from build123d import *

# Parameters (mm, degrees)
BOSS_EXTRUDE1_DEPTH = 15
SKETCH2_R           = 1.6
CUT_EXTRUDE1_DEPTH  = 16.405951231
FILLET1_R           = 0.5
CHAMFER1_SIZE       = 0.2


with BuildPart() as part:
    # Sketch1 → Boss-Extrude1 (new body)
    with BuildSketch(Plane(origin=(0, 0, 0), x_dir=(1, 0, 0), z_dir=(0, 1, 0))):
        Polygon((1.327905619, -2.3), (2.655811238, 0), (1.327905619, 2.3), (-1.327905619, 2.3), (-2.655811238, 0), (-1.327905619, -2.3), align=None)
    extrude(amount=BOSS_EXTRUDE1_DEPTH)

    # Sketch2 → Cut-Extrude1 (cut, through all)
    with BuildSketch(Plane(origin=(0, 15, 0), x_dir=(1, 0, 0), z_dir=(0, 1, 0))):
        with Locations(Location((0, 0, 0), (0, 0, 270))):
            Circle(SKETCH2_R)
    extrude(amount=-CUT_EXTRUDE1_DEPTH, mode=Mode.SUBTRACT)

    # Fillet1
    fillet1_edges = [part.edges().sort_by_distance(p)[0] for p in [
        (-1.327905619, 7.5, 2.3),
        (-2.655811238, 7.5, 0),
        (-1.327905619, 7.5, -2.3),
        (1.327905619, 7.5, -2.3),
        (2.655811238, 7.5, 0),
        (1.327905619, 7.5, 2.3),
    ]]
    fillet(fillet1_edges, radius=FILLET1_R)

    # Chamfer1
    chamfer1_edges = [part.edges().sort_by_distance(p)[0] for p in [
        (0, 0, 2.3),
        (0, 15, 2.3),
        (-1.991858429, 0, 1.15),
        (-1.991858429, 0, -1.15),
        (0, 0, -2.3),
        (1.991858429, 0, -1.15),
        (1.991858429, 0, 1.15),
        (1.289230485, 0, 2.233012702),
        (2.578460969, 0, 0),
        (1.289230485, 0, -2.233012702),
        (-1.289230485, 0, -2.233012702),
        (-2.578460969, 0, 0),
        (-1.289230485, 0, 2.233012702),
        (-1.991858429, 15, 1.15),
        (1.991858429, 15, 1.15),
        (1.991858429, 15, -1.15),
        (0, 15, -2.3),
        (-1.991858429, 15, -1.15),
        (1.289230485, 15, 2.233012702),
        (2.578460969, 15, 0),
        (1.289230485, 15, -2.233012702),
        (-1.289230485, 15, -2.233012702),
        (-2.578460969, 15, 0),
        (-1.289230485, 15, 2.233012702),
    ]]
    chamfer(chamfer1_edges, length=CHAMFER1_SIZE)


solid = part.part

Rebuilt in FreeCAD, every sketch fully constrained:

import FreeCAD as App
import Part
import Sketcher
from FreeCAD import Vector
Q = App.Units.Quantity


def edges_at(feature, points):
    """Names of the edges that pass closest to the given points."""
    edges = feature.Shape.Edges
    near = lambda p: min(range(len(edges)), key=lambda i: edges[i].distToShape(Part.Vertex(*p))[0])
    return sorted({f"Edge{near(p) + 1}" for p in points})


def add_polygon(sketch, points):
    """Adds a closed chain of lines whose ends are joined by coincident constraints."""
    first, n = sketch.GeometryCount, len(points)
    for a, b in zip(points, points[1:] + points[:1]):
        sketch.addGeometry(Part.LineSegment(App.Vector(*a, 0), App.Vector(*b, 0)), False)
    for i in range(n):
        sketch.addConstraint(Sketcher.Constraint("Coincident", first + i, 2, first + (i + 1) % n, 1))

doc = App.newDocument("Part")
body = doc.addObject("PartDesign::Body", "Body")

# Sketch on XZ plane
sketch1 = body.newObject("Sketcher::SketchObject", "Sketch")
sketch1.AttachmentSupport = (doc.getObject("XZ_Plane"), [""])
sketch1.MapMode = "FlatFace"
add_polygon(sketch1, [(1.3, 2.3), (2.7, 0), (1.3, -2.3), (-1.3, -2.3), (-2.7, 0), (-1.3, 2.3)])  # lines 0-5
sketch1.addConstraint([
    Sketcher.Constraint("Horizontal", 2),
    Sketcher.Constraint("Horizontal", 5),
    Sketcher.Constraint("Symmetric", 0, 2, 3, 2, -1, 1),
    Sketcher.Constraint("Symmetric", 1, 2, 4, 2, -1, 1),
    Sketcher.Constraint("PointOnObject", 0, 2, -1),
    Sketcher.Constraint("Parallel", 0, 3),
    Sketcher.Constraint("Vertical", 2, 2, 4, 2),
    Sketcher.Constraint("Angle", 0, Q("-60 deg")),
    Sketcher.Constraint("DistanceY", 1, 2, -1, 1, Q("2.3 mm")),
    Sketcher.Constraint("DistanceX", 2, 2, 2, 1, Q("2.655811 mm")),
])
pad1 = body.newObject("PartDesign::Pad", "Pad")
pad1.Profile = sketch1
pad1.Length = 15
pad1.Reversed = True

# Sketch on XZ plane
sketch2 = body.newObject("Sketcher::SketchObject", "Sketch001")
sketch2.AttachmentSupport = (doc.getObject("XZ_Plane"), [""])
sketch2.MapMode = "FlatFace"
sketch2.AttachmentOffset = App.Placement(Vector(0, 0, -15), App.Rotation())
sketch2.addGeometry(Part.Circle(Vector(0, 0, 0), Vector(0, 0, 1), 1.6), False)
sketch2.addConstraint([
    Sketcher.Constraint("Coincident", 0, 3, -1, 1),
    Sketcher.Constraint("Diameter", 0, Q("3.2 mm")),
])
pocket1 = body.newObject("PartDesign::Pocket", "Pocket")
pocket1.Profile = sketch2
pocket1.Type = "ThroughAll"
pocket1.Reversed = True
doc.recompute()

fillet = body.newObject("PartDesign::Fillet", "Fillet")
fillet.Base = (pocket1, edges_at(pocket1, [
    (-1.328, 7.5, 2.3),
    (-2.656, 7.5, 0),
    (-1.328, 7.5, -2.3),
    (1.328, 7.5, -2.3),
    (2.656, 7.5, 0),
    (1.328, 7.5, 2.3),
]))
fillet.Radius = 0.5
doc.recompute()

chamfer = body.newObject("PartDesign::Chamfer", "Chamfer")
chamfer.Base = (fillet, edges_at(fillet, [
    (0, 0, 2.3),
    (0, 15, 2.3),
    (-1.992, 0, 1.15),
    (-1.992, 0, -1.15),
    (0, 0, -2.3),
    (1.992, 0, -1.15),
    (1.992, 0, 1.15),
    (1.289, 0, 2.233),
    (2.578, 0, 0),
    (1.289, 0, -2.233),
    (-1.289, 0, -2.233),
    (-2.578, 0, 0),
    (-1.289, 0, 2.233),
    (-1.992, 15, 1.15),
    (1.992, 15, 1.15),
    (1.992, 15, -1.15),
    (0, 15, -2.3),
    (-1.992, 15, -1.15),
    (1.289, 15, 2.233),
    (2.578, 15, 0),
    (1.289, 15, -2.233),
    (-1.289, 15, -2.233),
    (-2.578, 15, 0),
    (-1.289, 15, 2.233),
]))
chamfer.Size = 0.2

doc.recompute()
